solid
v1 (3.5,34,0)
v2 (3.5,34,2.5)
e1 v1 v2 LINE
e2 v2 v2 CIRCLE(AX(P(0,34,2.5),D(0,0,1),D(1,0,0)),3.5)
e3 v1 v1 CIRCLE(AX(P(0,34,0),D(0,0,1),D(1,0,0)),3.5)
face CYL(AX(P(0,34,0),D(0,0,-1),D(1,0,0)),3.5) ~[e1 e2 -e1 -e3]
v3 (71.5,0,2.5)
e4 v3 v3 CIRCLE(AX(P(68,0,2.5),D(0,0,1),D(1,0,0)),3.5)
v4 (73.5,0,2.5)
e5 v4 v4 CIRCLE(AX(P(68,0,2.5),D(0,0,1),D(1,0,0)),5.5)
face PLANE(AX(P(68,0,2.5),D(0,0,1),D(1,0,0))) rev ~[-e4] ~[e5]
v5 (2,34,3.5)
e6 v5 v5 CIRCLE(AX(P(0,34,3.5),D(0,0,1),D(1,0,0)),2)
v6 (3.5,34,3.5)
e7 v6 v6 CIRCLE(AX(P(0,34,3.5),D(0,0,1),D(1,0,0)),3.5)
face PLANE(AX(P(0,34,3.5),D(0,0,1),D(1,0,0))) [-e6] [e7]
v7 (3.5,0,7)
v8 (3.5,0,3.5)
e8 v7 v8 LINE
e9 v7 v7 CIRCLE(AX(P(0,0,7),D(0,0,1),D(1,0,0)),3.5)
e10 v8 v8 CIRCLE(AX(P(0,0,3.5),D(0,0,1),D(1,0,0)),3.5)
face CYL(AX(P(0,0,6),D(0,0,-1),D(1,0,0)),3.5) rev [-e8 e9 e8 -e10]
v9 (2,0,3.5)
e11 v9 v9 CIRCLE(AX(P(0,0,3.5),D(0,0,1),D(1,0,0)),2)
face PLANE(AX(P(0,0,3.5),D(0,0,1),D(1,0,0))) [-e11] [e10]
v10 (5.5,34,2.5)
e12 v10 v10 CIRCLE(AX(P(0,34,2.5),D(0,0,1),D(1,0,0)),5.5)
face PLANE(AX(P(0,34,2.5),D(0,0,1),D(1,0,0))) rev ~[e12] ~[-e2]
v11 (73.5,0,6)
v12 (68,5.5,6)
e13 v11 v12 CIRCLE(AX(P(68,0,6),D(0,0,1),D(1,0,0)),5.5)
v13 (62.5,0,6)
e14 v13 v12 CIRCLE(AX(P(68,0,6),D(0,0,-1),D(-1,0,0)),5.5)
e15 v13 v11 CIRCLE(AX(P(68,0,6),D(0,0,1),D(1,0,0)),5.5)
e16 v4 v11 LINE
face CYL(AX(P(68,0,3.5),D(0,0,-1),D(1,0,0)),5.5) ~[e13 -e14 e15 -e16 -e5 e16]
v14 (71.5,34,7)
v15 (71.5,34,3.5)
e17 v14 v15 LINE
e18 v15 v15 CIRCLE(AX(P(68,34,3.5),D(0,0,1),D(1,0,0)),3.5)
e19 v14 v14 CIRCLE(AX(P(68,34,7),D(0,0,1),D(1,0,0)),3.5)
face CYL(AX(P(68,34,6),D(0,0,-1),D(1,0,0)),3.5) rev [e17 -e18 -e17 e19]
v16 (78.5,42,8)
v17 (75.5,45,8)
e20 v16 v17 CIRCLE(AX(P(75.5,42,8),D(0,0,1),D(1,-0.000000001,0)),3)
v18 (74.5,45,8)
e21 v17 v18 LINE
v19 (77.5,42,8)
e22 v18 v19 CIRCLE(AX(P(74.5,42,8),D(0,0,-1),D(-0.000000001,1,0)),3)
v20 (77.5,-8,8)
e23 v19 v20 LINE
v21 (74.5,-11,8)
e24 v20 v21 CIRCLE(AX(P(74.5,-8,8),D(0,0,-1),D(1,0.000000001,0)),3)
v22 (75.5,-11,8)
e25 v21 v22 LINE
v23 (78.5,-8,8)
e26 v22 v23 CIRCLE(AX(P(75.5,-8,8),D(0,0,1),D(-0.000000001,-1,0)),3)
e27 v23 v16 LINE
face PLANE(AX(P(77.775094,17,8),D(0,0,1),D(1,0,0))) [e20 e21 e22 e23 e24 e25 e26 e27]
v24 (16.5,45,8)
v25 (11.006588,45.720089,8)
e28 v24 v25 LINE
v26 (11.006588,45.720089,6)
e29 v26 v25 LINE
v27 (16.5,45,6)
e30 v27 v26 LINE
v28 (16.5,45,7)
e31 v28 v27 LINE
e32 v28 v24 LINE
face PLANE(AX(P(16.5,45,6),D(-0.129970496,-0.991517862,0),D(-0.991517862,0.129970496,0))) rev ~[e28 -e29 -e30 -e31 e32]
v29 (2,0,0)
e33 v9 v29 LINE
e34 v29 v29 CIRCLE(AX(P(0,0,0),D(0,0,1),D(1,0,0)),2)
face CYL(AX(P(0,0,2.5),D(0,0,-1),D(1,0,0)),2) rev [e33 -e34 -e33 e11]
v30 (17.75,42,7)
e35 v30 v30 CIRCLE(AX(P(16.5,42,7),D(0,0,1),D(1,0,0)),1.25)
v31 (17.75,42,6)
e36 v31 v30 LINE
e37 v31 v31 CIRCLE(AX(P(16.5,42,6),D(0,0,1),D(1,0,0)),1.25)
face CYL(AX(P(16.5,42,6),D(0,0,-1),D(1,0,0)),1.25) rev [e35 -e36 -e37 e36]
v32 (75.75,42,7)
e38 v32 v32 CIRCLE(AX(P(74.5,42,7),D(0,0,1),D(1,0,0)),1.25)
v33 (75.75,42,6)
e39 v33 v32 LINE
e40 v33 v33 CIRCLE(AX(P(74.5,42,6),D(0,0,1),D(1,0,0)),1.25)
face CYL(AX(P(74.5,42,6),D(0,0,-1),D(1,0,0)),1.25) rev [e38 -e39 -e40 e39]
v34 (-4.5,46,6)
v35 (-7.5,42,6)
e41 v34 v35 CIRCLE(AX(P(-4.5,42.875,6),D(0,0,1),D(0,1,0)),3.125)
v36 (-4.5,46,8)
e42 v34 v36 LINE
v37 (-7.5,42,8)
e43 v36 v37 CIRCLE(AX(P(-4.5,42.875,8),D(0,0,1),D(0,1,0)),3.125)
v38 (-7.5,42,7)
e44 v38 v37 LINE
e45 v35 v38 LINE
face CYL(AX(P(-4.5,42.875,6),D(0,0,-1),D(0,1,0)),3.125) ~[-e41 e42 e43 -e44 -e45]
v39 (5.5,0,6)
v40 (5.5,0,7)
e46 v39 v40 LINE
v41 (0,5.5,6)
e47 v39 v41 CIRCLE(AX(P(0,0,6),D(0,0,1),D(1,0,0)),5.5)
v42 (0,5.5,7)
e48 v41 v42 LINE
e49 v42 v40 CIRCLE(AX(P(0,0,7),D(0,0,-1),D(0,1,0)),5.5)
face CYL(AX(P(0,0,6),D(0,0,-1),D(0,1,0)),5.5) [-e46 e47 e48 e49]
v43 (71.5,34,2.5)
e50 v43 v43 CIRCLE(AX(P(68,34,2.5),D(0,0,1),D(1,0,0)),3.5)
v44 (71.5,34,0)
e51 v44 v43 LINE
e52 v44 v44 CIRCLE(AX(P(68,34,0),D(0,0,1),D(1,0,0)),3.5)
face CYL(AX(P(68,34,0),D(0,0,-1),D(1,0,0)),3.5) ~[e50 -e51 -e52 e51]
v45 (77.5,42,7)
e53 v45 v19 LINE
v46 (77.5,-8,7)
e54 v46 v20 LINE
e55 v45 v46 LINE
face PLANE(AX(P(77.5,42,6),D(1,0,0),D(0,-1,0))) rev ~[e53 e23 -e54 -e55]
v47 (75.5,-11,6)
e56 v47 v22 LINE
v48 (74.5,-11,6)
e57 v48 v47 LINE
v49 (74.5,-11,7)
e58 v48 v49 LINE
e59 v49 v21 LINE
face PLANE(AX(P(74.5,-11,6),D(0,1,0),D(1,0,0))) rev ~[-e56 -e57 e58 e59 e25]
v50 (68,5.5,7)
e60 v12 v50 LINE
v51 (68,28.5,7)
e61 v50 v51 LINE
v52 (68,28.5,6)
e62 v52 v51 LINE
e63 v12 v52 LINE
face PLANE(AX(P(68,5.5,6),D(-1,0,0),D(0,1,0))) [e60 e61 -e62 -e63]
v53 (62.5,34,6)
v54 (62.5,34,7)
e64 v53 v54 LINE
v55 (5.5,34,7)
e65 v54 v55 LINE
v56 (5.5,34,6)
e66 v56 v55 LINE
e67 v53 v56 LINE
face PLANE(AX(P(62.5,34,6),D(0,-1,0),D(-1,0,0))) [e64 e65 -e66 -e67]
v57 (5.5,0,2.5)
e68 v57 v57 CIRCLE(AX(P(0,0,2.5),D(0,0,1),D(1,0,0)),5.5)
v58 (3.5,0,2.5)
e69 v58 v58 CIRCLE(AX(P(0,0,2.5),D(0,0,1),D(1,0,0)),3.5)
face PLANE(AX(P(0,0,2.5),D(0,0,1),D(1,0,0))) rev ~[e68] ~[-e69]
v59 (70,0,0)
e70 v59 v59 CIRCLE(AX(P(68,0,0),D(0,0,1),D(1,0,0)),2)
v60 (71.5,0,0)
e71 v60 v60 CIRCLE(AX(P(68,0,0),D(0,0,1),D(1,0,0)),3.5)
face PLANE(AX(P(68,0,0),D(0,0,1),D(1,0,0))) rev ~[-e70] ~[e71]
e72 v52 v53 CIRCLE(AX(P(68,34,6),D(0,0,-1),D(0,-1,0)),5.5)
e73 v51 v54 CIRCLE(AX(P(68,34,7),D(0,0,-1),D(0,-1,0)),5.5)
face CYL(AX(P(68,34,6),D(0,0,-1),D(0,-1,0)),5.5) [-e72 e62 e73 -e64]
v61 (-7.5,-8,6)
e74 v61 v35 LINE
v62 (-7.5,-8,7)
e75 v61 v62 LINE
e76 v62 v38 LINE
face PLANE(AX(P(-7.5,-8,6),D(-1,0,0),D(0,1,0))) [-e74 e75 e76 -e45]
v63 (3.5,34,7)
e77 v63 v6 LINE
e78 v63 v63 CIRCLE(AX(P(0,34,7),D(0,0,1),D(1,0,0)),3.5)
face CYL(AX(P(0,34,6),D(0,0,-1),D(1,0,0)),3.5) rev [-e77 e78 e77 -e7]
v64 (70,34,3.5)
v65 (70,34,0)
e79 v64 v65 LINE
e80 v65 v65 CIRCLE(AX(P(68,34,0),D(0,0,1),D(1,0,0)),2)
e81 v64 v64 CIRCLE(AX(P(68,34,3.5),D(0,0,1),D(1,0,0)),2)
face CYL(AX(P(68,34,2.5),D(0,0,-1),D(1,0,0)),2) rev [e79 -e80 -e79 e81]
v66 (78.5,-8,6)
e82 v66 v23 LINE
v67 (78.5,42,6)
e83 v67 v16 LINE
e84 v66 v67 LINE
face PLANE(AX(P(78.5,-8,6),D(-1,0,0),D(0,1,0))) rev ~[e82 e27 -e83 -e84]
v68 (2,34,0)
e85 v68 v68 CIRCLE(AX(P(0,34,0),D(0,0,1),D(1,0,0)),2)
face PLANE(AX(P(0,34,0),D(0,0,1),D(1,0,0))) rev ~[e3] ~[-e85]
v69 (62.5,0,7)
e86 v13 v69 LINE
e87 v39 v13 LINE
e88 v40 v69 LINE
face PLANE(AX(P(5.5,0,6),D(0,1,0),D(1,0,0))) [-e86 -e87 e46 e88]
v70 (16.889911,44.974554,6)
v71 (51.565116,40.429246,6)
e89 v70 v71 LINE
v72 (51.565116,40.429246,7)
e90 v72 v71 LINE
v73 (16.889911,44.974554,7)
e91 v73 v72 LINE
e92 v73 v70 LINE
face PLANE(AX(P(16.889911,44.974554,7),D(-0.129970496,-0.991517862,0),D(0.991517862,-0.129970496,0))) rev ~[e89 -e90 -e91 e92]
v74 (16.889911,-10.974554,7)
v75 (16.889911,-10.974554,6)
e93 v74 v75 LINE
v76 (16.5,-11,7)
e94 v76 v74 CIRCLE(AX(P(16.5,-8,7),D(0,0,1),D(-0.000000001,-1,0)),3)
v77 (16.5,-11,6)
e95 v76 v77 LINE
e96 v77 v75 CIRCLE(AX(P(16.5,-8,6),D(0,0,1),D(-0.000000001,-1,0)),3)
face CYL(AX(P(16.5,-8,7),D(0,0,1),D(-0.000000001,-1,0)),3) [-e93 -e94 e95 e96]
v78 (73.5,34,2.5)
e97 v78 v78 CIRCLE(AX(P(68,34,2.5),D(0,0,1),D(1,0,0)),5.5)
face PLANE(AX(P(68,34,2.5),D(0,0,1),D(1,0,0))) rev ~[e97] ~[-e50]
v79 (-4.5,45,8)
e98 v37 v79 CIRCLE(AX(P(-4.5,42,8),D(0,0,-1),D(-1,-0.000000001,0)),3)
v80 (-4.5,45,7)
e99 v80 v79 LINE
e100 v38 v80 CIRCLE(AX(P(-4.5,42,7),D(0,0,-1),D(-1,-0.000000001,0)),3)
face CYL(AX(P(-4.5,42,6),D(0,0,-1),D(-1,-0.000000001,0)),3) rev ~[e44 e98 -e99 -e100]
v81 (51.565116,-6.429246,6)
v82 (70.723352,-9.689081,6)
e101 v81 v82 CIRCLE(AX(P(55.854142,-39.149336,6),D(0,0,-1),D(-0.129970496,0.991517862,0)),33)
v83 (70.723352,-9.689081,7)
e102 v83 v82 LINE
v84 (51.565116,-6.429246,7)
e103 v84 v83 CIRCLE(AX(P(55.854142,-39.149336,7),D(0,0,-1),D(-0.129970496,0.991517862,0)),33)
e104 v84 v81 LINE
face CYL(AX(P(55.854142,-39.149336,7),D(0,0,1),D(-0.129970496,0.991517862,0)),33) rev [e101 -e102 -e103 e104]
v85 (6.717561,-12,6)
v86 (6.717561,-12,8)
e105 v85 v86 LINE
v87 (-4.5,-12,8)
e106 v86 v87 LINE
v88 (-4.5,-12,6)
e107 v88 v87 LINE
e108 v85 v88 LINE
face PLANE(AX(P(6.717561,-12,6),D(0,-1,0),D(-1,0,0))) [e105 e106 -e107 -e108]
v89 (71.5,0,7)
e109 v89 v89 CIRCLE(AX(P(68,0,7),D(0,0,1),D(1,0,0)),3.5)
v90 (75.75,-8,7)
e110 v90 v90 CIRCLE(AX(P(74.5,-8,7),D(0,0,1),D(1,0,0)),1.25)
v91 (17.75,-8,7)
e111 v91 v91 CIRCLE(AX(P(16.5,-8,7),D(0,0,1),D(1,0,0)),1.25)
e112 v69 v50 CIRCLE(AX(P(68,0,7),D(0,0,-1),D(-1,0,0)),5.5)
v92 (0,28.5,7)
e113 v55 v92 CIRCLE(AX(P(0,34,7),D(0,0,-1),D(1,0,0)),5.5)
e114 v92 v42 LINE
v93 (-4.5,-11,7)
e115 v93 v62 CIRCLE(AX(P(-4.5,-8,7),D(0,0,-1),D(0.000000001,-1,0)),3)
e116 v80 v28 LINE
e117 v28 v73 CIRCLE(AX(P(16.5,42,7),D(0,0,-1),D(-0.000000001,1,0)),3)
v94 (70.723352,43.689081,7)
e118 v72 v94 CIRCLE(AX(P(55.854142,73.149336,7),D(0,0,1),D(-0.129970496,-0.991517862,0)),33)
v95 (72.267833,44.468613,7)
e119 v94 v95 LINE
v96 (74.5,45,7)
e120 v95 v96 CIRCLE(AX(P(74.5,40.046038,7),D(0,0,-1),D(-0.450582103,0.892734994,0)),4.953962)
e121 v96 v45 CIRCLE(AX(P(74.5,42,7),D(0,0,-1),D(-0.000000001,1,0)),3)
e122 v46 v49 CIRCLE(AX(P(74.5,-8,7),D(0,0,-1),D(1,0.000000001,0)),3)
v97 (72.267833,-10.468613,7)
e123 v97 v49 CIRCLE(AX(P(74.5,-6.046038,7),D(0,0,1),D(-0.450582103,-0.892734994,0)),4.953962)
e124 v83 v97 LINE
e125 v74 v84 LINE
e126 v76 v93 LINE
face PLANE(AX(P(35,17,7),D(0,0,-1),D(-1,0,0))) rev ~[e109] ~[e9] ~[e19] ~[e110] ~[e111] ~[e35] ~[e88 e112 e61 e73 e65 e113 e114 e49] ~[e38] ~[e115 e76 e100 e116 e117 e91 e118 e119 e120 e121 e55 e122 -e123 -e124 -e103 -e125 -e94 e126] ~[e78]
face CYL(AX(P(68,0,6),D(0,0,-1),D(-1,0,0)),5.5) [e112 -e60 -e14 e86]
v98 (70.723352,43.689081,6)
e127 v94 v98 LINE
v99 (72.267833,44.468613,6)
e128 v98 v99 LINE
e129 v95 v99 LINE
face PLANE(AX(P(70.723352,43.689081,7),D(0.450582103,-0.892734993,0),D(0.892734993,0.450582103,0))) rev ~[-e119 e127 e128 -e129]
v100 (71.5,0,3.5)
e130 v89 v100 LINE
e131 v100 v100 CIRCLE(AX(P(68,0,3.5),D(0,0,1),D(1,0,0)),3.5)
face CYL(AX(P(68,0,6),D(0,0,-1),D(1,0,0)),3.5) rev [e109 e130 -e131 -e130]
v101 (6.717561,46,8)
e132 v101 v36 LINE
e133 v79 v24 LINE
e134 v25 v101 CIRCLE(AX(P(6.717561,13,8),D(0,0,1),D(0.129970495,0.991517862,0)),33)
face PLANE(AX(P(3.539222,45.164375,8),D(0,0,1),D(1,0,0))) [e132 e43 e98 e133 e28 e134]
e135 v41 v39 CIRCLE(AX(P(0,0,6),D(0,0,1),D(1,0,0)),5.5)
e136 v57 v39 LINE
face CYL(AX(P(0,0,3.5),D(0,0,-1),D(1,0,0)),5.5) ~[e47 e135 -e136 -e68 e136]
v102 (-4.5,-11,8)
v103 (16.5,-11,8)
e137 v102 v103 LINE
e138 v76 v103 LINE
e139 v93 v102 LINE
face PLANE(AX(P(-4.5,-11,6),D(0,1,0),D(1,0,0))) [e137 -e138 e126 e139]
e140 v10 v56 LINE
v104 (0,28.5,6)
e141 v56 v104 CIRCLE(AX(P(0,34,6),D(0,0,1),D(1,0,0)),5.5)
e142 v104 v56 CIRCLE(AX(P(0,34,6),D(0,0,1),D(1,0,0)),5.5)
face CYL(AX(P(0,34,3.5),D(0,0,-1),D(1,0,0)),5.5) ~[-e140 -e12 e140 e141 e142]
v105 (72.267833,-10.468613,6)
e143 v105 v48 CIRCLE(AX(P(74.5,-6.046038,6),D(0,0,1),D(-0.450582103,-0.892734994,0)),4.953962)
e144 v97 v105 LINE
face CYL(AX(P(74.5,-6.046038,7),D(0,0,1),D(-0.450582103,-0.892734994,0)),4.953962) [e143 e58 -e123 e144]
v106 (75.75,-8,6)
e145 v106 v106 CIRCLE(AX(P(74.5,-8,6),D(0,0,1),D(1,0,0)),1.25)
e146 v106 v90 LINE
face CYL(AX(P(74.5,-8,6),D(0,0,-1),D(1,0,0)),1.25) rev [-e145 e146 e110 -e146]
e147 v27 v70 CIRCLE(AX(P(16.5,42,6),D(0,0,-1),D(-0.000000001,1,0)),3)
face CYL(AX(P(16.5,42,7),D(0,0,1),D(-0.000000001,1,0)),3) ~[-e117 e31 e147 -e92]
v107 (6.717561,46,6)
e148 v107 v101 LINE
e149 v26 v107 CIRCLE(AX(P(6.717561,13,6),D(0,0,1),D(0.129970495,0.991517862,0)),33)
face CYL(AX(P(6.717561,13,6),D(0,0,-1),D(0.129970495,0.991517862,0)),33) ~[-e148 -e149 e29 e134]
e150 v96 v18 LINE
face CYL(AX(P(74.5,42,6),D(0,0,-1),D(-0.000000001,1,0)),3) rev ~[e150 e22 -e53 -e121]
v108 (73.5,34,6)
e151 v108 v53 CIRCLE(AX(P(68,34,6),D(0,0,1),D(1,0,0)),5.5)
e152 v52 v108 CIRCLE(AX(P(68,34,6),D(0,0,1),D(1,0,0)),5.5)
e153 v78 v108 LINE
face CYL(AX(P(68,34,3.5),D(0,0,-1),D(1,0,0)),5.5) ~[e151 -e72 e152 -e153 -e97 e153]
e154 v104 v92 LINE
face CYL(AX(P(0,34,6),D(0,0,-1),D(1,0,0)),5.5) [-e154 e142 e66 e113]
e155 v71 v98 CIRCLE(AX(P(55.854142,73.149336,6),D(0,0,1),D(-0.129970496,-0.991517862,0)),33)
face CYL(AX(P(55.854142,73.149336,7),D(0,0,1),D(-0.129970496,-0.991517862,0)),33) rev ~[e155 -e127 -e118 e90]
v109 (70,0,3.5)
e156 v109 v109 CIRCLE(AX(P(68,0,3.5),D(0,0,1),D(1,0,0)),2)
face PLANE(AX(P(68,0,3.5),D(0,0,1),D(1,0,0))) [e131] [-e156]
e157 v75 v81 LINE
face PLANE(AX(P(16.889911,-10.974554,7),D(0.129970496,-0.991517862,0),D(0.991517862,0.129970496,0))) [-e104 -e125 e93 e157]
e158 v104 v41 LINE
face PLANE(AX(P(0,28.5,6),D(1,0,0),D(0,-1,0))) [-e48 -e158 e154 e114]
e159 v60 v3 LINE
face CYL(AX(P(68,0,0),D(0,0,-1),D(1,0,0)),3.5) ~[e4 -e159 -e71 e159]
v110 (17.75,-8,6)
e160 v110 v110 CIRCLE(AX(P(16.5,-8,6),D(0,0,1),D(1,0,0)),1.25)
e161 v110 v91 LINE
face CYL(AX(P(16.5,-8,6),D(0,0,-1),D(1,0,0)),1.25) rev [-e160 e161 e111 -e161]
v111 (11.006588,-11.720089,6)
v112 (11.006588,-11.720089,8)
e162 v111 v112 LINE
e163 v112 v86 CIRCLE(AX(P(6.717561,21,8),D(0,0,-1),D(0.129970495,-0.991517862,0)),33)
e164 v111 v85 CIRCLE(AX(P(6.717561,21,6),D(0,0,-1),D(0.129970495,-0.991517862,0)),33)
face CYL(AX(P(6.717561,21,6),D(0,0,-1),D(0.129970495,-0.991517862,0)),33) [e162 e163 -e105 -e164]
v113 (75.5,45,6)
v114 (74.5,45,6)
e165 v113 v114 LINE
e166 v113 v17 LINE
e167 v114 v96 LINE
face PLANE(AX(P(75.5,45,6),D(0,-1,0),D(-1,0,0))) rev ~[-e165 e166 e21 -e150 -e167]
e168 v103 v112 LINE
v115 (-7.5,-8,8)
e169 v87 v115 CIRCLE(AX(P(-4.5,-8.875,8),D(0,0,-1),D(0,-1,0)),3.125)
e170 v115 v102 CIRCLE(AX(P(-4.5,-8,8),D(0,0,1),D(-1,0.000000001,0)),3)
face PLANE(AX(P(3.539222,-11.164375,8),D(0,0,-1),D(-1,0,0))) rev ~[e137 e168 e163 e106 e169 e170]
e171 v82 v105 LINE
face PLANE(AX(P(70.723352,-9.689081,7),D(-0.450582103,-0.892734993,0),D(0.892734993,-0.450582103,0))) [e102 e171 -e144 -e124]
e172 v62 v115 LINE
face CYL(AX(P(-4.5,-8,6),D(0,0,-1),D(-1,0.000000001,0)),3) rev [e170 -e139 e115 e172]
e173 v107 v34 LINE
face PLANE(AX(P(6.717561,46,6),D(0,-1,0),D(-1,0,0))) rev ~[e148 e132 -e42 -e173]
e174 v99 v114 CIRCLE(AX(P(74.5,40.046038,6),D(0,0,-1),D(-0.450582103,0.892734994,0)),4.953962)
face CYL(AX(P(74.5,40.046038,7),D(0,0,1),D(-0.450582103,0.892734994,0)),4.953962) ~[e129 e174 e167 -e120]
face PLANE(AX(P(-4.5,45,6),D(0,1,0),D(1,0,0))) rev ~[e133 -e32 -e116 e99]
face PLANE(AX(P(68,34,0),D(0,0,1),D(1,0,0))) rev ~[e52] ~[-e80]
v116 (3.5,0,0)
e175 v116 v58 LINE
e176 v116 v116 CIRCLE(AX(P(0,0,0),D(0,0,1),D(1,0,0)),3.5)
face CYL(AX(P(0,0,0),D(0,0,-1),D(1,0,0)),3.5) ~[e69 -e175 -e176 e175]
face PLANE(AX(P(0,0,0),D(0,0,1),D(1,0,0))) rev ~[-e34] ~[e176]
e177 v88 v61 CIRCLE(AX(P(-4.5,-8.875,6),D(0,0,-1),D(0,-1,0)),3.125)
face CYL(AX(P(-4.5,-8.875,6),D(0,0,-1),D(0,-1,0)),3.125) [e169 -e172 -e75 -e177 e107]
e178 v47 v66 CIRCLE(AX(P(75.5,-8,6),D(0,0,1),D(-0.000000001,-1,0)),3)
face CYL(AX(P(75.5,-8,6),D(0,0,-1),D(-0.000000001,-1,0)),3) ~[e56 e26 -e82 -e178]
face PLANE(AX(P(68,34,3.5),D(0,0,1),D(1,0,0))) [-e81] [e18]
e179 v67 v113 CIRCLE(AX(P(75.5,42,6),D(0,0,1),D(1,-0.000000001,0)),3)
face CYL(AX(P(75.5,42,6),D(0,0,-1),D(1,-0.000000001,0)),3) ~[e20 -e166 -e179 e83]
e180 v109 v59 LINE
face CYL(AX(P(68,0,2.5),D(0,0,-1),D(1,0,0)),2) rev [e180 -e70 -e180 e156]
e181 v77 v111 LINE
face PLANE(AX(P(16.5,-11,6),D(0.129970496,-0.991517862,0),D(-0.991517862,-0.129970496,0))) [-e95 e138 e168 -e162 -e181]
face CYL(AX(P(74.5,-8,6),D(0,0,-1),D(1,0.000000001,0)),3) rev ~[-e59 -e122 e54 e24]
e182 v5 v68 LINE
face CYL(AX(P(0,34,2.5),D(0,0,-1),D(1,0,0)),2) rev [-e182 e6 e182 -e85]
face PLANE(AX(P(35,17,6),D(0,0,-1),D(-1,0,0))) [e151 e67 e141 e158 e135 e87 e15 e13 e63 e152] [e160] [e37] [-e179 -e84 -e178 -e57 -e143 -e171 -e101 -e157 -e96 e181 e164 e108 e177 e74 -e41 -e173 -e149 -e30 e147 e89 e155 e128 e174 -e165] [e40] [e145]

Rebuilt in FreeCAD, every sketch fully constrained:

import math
import FreeCAD as App
import Part
import Sketcher

V = App.Vector
Q = App.Units.Quantity

doc = App.newDocument("Part")
body = doc.addObject("PartDesign::Body", "Body")

# Sketch on XY plane
sketch1 = body.newObject("Sketcher::SketchObject", "Sketch")
sketch1.AttachmentSupport = (doc.getObject("XY_Plane"), [""])
sketch1.MapMode = "FlatFace"
sketch1.addGeometry([
    Part.Circle(V(0, 34, 0), V(0, 0, 1), 3.5),
    Part.Circle(V(0, 34, 0), V(0, 0, 1), 2),
], False)
sketch1.addConstraint([
    Sketcher.Constraint("Coincident", 1, 3, 0, 3),
    Sketcher.Constraint("PointOnObject", 0, 3, -2),
    Sketcher.Constraint("Diameter", 0, Q("7 mm")),
    Sketcher.Constraint("Diameter", 1, Q("4 mm")),
    Sketcher.Constraint("DistanceY", -1, 1, 0, 3, Q("34 mm")),
])
pad1 = body.newObject("PartDesign::Pad", "Pad")
pad1.Profile = sketch1
pad1.Length = 2.5
body2 = doc.addObject("PartDesign::Body", "Body001")

# Sketch on XY plane
sketch2 = body2.newObject("Sketcher::SketchObject", "Sketch001")
sketch2.AttachmentSupport = (doc.getObject("XY_Plane001"), [""])
sketch2.MapMode = "FlatFace"
sketch2.addGeometry([
    Part.Circle(V(68, 34, 0), V(0, 0, 1), 3.5),
    Part.Circle(V(68, 34, 0), V(0, 0, 1), 2),
], False)
sketch2.addConstraint([
    Sketcher.Constraint("Coincident", 1, 3, 0, 3),
    Sketcher.Constraint("Diameter", 0, Q("7 mm")),
    Sketcher.Constraint("Diameter", 1, Q("4 mm")),
    Sketcher.Constraint("DistanceX", -1, 1, 0, 3, Q("68 mm")),
    Sketcher.Constraint("DistanceY", -1, 1, 0, 3, Q("34 mm")),
])
pad2 = body2.newObject("PartDesign::Pad", "Pad001")
pad2.Profile = sketch2
pad2.Length = 2.5
body3 = doc.addObject("PartDesign::Body", "Body002")

# Sketch on XY plane
sketch3 = body3.newObject("Sketcher::SketchObject", "Sketch002")
sketch3.AttachmentSupport = (doc.getObject("XY_Plane002"), [""])
sketch3.MapMode = "FlatFace"
sketch3.addGeometry([
    Part.Circle(V(68, 0, 0), V(0, 0, 1), 3.5),
    Part.Circle(V(68, 0, 0), V(0, 0, 1), 2),
], False)
sketch3.addConstraint([
    Sketcher.Constraint("Coincident", 1, 3, 0, 3),
    Sketcher.Constraint("PointOnObject", 0, 3, -1),
    Sketcher.Constraint("Diameter", 0, Q("7 mm")),
    Sketcher.Constraint("Diameter", 1, Q("4 mm")),
    Sketcher.Constraint("DistanceX", -1, 1, 0, 3, Q("68 mm")),
])
pad3 = body3.newObject("PartDesign::Pad", "Pad002")
pad3.Profile = sketch3
pad3.Length = 2.5
body4 = doc.addObject("PartDesign::Body", "Body003")

# Sketch on XY plane
sketch4 = body4.newObject("Sketcher::SketchObject", "Sketch003")
sketch4.AttachmentSupport = (doc.getObject("XY_Plane003"), [""])
sketch4.MapMode = "FlatFace"
sketch4.addGeometry([
    Part.Circle(V(0, 0, 0), V(0, 0, 1), 3.5),
    Part.Circle(V(0, 0, 0), V(0, 0, 1), 2),
], False)
sketch4.addConstraint([
    Sketcher.Constraint("Coincident", 0, 3, -1, 1),
    Sketcher.Constraint("Coincident", 1, 3, -1, 1),
    Sketcher.Constraint("Diameter", 0, Q("7 mm")),
    Sketcher.Constraint("Diameter", 1, Q("4 mm")),
])
pad4 = body4.newObject("PartDesign::Pad", "Pad003")
pad4.Profile = sketch4
pad4.Length = 2.5
body.AllowCompound = True
doc.recompute()

boolean = body.newObject("PartDesign::Boolean", "Boolean")
boolean.Type = "Fuse"
boolean.addObjects([body2])
doc.recompute()

boolean2 = body.newObject("PartDesign::Boolean", "Boolean001")
boolean2.Type = "Fuse"
boolean2.addObjects([body3])
doc.recompute()

boolean3 = body.newObject("PartDesign::Boolean", "Boolean002")
boolean3.Type = "Fuse"
boolean3.addObjects([body4])

# Sketch on XY plane
sketch5 = body.newObject("Sketcher::SketchObject", "Sketch004")
sketch5.AttachmentSupport = (doc.getObject("XY_Plane"), [""])
sketch5.MapMode = "FlatFace"
sketch5.AttachmentOffset = App.Placement(V(0, 0, 2.5), App.Rotation())
sketch5.addGeometry([
    Part.Circle(V(0, 34, 0), V(0, 0, 1), 5.5),  # 0
    Part.Circle(V(0, 34, 0), V(0, 0, 1), 2),  # 1
    Part.Circle(V(68, 34, 0), V(0, 0, 1), 5.5),  # 2
    Part.Circle(V(68, 34, 0), V(0, 0, 1), 2),  # 3
    Part.Circle(V(68, 0, 0), V(0, 0, 1), 5.5),  # 4
    Part.Circle(V(68, 0, 0), V(0, 0, 1), 2),  # 5
    Part.Circle(V(0, 0, 0), V(0, 0, 1), 5.5),  # 6
    Part.Circle(V(0, 0, 0), V(0, 0, 1), 2),  # 7
], False)
sketch5.addConstraint([
    Sketcher.Constraint("Coincident", 6, 3, -1, 1),
    Sketcher.Constraint("Coincident", 7, 3, -1, 1),
    Sketcher.Constraint("Coincident", 1, 3, 0, 3),
    Sketcher.Constraint("Coincident", 3, 3, 2, 3),
    Sketcher.Constraint("Coincident", 5, 3, 4, 3),
    Sketcher.Constraint("Equal", 0, 2),
    Sketcher.Constraint("Equal", 1, 3),
    Sketcher.Constraint("Equal", 2, 4),
    Sketcher.Constraint("Equal", 3, 5),
    Sketcher.Constraint("Equal", 4, 6),
    Sketcher.Constraint("Equal", 5, 7),
    Sketcher.Constraint("PointOnObject", 0, 3, -2),
    Sketcher.Constraint("PointOnObject", 4, 3, -1),
    Sketcher.Constraint("Horizontal", 1, 3, 2, 3),
    Sketcher.Constraint("Vertical", 3, 3, 4, 3),
    Sketcher.Constraint("Diameter", 0, Q("11 mm")),
    Sketcher.Constraint("Diameter", 1, Q("4 mm")),
    Sketcher.Constraint("DistanceY", -1, 1, 0, 3, Q("34 mm")),
    Sketcher.Constraint("DistanceX", -1, 1, 2, 3, Q("68 mm")),
])
pad5 = body.newObject("PartDesign::Pad", "Pad004")
pad5.Profile = sketch5
pad5.Length = 1

# Sketch on XY plane
sketch6 = body.newObject("Sketcher::SketchObject", "Sketch005")
sketch6.AttachmentSupport = (doc.getObject("XY_Plane"), [""])
sketch6.MapMode = "FlatFace"
sketch6.AttachmentOffset = App.Placement(V(0, 0, 3.5), App.Rotation())
sketch6.addGeometry([
    Part.Circle(V(0, 34, 0), V(0, 0, 1), 5.5),  # 0
    Part.Circle(V(0, 34, 0), V(0, 0, 1), 3.5),  # 1
    Part.Circle(V(68, 34, 0), V(0, 0, 1), 5.5),  # 2
    Part.Circle(V(68, 34, 0), V(0, 0, 1), 3.5),  # 3
    Part.Circle(V(68, 0, 0), V(0, 0, 1), 5.5),  # 4
    Part.Circle(V(68, 0, 0), V(0, 0, 1), 3.5),  # 5
    Part.Circle(V(0, 0, 0), V(0, 0, 1), 5.5),  # 6
    Part.Circle(V(0, 0, 0), V(0, 0, 1), 3.5),  # 7
], False)
sketch6.addConstraint([
    Sketcher.Constraint("Coincident", 6, 3, -1, 1),
    Sketcher.Constraint("Coincident", 7, 3, -1, 1),
    Sketcher.Constraint("Coincident", 1, 3, 0, 3),
    Sketcher.Constraint("Coincident", 3, 3, 2, 3),
    Sketcher.Constraint("Coincident", 5, 3, 4, 3),
    Sketcher.Constraint("Equal", 0, 2),
    Sketcher.Constraint("Equal", 1, 3),
    Sketcher.Constraint("Equal", 2, 4),
    Sketcher.Constraint("Equal", 3, 5),
    Sketcher.Constraint("Equal", 4, 6),
    Sketcher.Constraint("Equal", 5, 7),
    Sketcher.Constraint("PointOnObject", 0, 3, -2),
    Sketcher.Constraint("PointOnObject", 4, 3, -1),
    Sketcher.Constraint("Horizontal", 1, 3, 2, 3),
    Sketcher.Constraint("Vertical", 3, 3, 4, 3),
    Sketcher.Constraint("Diameter", 0, Q("11 mm")),
    Sketcher.Constraint("Diameter", 1, Q("7 mm")),
    Sketcher.Constraint("DistanceY", -1, 1, 0, 3, Q("34 mm")),
    Sketcher.Constraint("DistanceX", -1, 1, 2, 3, Q("68 mm")),
])
pad6 = body.newObject("PartDesign::Pad", "Pad005")
pad6.Profile = sketch6
pad6.Length = 2.5

# Sketch on XY plane
sketch7 = body.newObject("Sketcher::SketchObject", "Sketch006")
sketch7.AttachmentSupport = (doc.getObject("XY_Plane"), [""])
sketch7.MapMode = "FlatFace"
sketch7.AttachmentOffset = App.Placement(V(0, 0, 6), App.Rotation())
sketch7.addGeometry([
    Part.LineSegment(V(74.5, 45, 0), V(-4.5, 45, 0)),  # 0
    Part.ArcOfCircle(Part.Circle(V(-4.5, 42, 0), V(0, 0, 1), 3), math.radians(90), math.radians(180)),  # 1
    Part.LineSegment(V(-7.5, 42, 0), V(-7.5, -8, 0)),  # 2
    Part.ArcOfCircle(Part.Circle(V(-4.5, -8, 0), V(0, 0, 1), 3), math.radians(180), math.radians(270)),  # 3
    Part.LineSegment(V(-4.5, -11, 0), V(74.5, -11, 0)),  # 4
    Part.ArcOfCircle(Part.Circle(V(74.5, -8, 0), V(0, 0, 1), 3), math.radians(-90), math.radians(0)),  # 5
    Part.LineSegment(V(77.5, -8, 0), V(77.5, 42, 0)),  # 6
    Part.ArcOfCircle(Part.Circle(V(74.5, 42, 0), V(0, 0, 1), 3), math.radians(0), math.radians(90)),  # 7
    Part.Circle(V(74.5, -8, 0), V(0, 0, 1), 1.2),  # 8
    Part.Circle(V(68, 0, 0), V(0, 0, 1), 3.5),  # 9
    Part.Circle(V(16.5, -8, 0), V(0, 0, 1), 1.2),  # 10
    Part.Circle(V(0, 0, 0), V(0, 0, 1), 3.5),  # 11
    Part.Circle(V(68, 34, 0), V(0, 0, 1), 3.5),  # 12
    Part.Circle(V(74.5, 42, 0), V(0, 0, 1), 1.2),  # 13
    Part.ArcOfCircle(Part.Circle(V(0, 0, 0), V(0, 0, 1), 5.5), math.radians(0), math.radians(90)),  # 14
    Part.LineSegment(V(0, 5.5, 0), V(0, 28.5, 0)),  # 15
    Part.ArcOfCircle(Part.Circle(V(0, 34, 0), V(0, 0, 1), 5.5), math.radians(-90), math.radians(0)),  # 16
    Part.LineSegment(V(5.5, 34, 0), V(62.5, 34, 0)),  # 17
    Part.ArcOfCircle(Part.Circle(V(68, 34, 0), V(0, 0, 1), 5.5), math.radians(180), math.radians(270)),  # 18
    Part.LineSegment(V(68, 28.5, 0), V(68, 5.5, 0)),  # 19
    Part.ArcOfCircle(Part.Circle(V(68, 0, 0), V(0, 0, 1), 5.5), math.radians(90), math.radians(180)),  # 20
    Part.LineSegment(V(62.5, 0, 0), V(5.5, 0, 0)),  # 21
    Part.Circle(V(16.5, 42, 0), V(0, 0, 1), 1.2),  # 22
    Part.Circle(V(0, 34, 0), V(0, 0, 1), 3.5),  # 23
], False)
sketch7.addConstraint([
    Sketcher.Constraint("Tangent", 0, 2, 1, 1),
    Sketcher.Constraint("Tangent", 1, 2, 2, 1),
    Sketcher.Constraint("Tangent", 2, 2, 3, 1),
    Sketcher.Constraint("Tangent", 3, 2, 4, 1),
    Sketcher.Constraint("Tangent", 4, 2, 5, 1),
    Sketcher.Constraint("Tangent", 5, 2, 6, 1),
    Sketcher.Constraint("Tangent", 6, 2, 7, 1),
    Sketcher.Constraint("Tangent", 7, 2, 0, 1),
    Sketcher.Constraint("Coincident", 14, 2, 15, 1),
    Sketcher.Constraint("Coincident", 15, 2, 16, 1),
    Sketcher.Constraint("Coincident", 16, 2, 17, 1),
    Sketcher.Constraint("Coincident", 17, 2, 18, 1),
    Sketcher.Constraint("Coincident", 18, 2, 19, 1),
    Sketcher.Constraint("Coincident", 19, 2, 20, 1),
    Sketcher.Constraint("Coincident", 20, 2, 21, 1),
    Sketcher.Constraint("Coincident", 21, 2, 14, 1),
    Sketcher.Constraint("Horizontal", 0),
    Sketcher.Constraint("Vertical", 2),
    Sketcher.Constraint("Horizontal", 4),
    Sketcher.Constraint("Vertical", 6),
    Sketcher.Constraint("Vertical", 15),
    Sketcher.Constraint("Horizontal", 17),
    Sketcher.Constraint("Vertical", 19),
    Sketcher.Constraint("Horizontal", 21),
    Sketcher.Constraint("Coincident", 11, 3, -1, 1),
    Sketcher.Constraint("Coincident", 14, 3, -1, 1),
    Sketcher.Constraint("Coincident", 8, 3, 5, 3),
    Sketcher.Constraint("Coincident", 13, 3, 7, 3),
    Sketcher.Constraint("Coincident", 18, 3, 12, 3),
    Sketcher.Constraint("Coincident", 20, 3, 9, 3),
    Sketcher.Constraint("Coincident", 23, 3, 16, 3),
    Sketcher.Constraint("Equal", 1, 3),
    Sketcher.Constraint("Equal", 3, 5),
    Sketcher.Constraint("Equal", 5, 7),
    Sketcher.Constraint("Equal", 8, 10),
    Sketcher.Constraint("Equal", 9, 11),
    Sketcher.Constraint("Equal", 11, 12),
    Sketcher.Constraint("Equal", 10, 13),
    Sketcher.Constraint("Equal", 14, 16),
    Sketcher.Constraint("Equal", 16, 18),
    Sketcher.Constraint("Equal", 18, 20),
    Sketcher.Constraint("Equal", 13, 22),
    Sketcher.Constraint("Equal", 12, 23),
    Sketcher.Constraint("PointOnObject", 9, 3, -1),
    Sketcher.Constraint("PointOnObject", 16, 3, -2),
    Sketcher.Constraint("PointOnObject", 14, 2, -2),
    Sketcher.Constraint("PointOnObject", 20, 2, -1),
    Sketcher.Constraint("Horizontal", 8, 3, 10, 3),
    Sketcher.Constraint("Horizontal", 12, 3, 16, 3),
    Sketcher.Constraint("Horizontal", 13, 3, 22, 3),
    Sketcher.Constraint("Horizontal", 23, 3, 16, 2),
    Sketcher.Constraint("Vertical", 9, 3, 12, 3),
    Sketcher.Constraint("Vertical", 10, 3, 22, 3),
    Sketcher.Constraint("Vertical", 20, 3, 18, 2),
    Sketcher.Constraint("Diameter", 9, Q("7 mm")),
    Sketcher.Constraint("Radius", 1, Q("3 mm")),
    Sketcher.Constraint("Diameter", 8, Q("2.5 mm")),
    Sketcher.Constraint("Radius", 14, Q("5.5 mm")),
    Sketcher.Constraint("DistanceX", 0, 2, 0, 1, Q("79 mm")),
    Sketcher.Constraint("DistanceX", 17, 1, 17, 2, Q("57 mm")),
    Sketcher.Constraint("DistanceY", 2, 2, 2, 1, Q("50 mm")),
    Sketcher.Constraint("DistanceY", 15, 1, 15, 2, Q("23 mm")),
    Sketcher.Constraint("DistanceY", -1, 1, 1, 3, Q("42 mm")),
    Sketcher.Constraint("DistanceX", 3, 3, 10, 3, Q("21 mm")),
    Sketcher.Constraint("DistanceX", 1, 3, 16, 2, Q("10 mm")),
])
pad7 = body.newObject("PartDesign::Pad", "Pad006")
pad7.Profile = sketch7
pad7.Length = 1

# Sketch on XY plane
sketch8 = body.newObject("Sketcher::SketchObject", "Sketch007")
sketch8.AttachmentSupport = (doc.getObject("XY_Plane"), [""])
sketch8.MapMode = "FlatFace"
sketch8.AttachmentOffset = App.Placement(V(0, 0, 7), App.Rotation())
sketch8.addGeometry([
    Part.LineSegment(V(16.89, 44.97, 0), V(51.57, 40.43, 0)),  # 0
    Part.ArcOfCircle(Part.Circle(V(55.85, 73.15, 0), V(0, 0, 1), 33), math.radians(-97), math.radians(-63)),  # 1
    Part.LineSegment(V(70.72, 43.69, 0), V(72.27, 44.47, 0)),  # 2
    Part.ArcOfCircle(Part.Circle(V(74.5, 40.05, 0), V(0, 0, 1), 4.95), math.radians(90), math.radians(117)),  # 3
    Part.LineSegment(V(74.5, 45, 0), V(74.5, 49.66, 0)),  # 4
    Part.LineSegment(V(74.5, 49.66, 0), V(16.5, 49.66, 0)),  # 5
    Part.LineSegment(V(16.5, 49.66, 0), V(16.5, 45, 0)),  # 6
    Part.ArcOfCircle(Part.Circle(V(16.5, 42, 0), V(0, 0, 1), 3), math.radians(82.53), math.radians(90)),  # 7
    Part.LineSegment(V(74.5, -15.66, 0), V(74.5, -11, 0)),  # 8
    Part.ArcOfCircle(Part.Circle(V(74.5, -6.05, 0), V(0, 0, 1), 4.95), math.radians(-117), math.radians(-90)),  # 9
    Part.LineSegment(V(72.27, -10.47, 0), V(70.72, -9.69, 0)),  # 10
    Part.ArcOfCircle(Part.Circle(V(55.85, -39.15, 0), V(0, 0, 1), 33), math.radians(63), math.radians(97)),  # 11
    Part.LineSegment(V(51.57, -6.43, 0), V(16.89, -10.97, 0)),  # 12
    Part.ArcOfCircle(Part.Circle(V(16.5, -8, 0), V(0, 0, 1), 3), math.radians(-90), math.radians(-82.53)),  # 13
    Part.LineSegment(V(16.5, -11, 0), V(16.5, -15.66, 0)),  # 14
    Part.LineSegment(V(16.5, -15.66, 0), V(74.5, -15.66, 0)),  # 15
], False)
sketch8.addConstraint([
    Sketcher.Constraint("Tangent", 0, 2, 1, 1),
    Sketcher.Constraint("Tangent", 1, 2, 2, 1),
    Sketcher.Constraint("Tangent", 2, 2, 3, 2),
    Sketcher.Constraint("Coincident", 3, 1, 4, 1),
    Sketcher.Constraint("Coincident", 4, 2, 5, 1),
    Sketcher.Constraint("Coincident", 5, 2, 6, 1),
    Sketcher.Constraint("Coincident", 6, 2, 7, 2),
    Sketcher.Constraint("Tangent", 7, 1, 0, 1),
    Sketcher.Constraint("Coincident", 8, 2, 9, 2),
    Sketcher.Constraint("Tangent", 9, 1, 10, 1),
    Sketcher.Constraint("Tangent", 10, 2, 11, 1),
    Sketcher.Constraint("Tangent", 11, 2, 12, 1),
    Sketcher.Constraint("Tangent", 12, 2, 13, 2),
    Sketcher.Constraint("Coincident", 13, 1, 14, 1),
    Sketcher.Constraint("Coincident", 14, 2, 15, 1),
    Sketcher.Constraint("Coincident", 15, 2, 8, 1),
    Sketcher.Constraint("Vertical", 4),
    Sketcher.Constraint("Horizontal", 5),
    Sketcher.Constraint("Vertical", 6),
    Sketcher.Constraint("Vertical", 8),
    Sketcher.Constraint("Vertical", 14),
    Sketcher.Constraint("Horizontal", 15),
    Sketcher.Constraint("Equal", 3, 9),
    Sketcher.Constraint("Equal", 1, 11),
    Sketcher.Constraint("Equal", 7, 13),
    Sketcher.Constraint("Horizontal", 3, 1, 6, 2),
    Sketcher.Constraint("Horizontal", 8, 2, 13, 1),
    Sketcher.Constraint("Vertical", 3, 3, 9, 3),
    Sketcher.Constraint("Vertical", 1, 3, 11, 3),
    Sketcher.Constraint("Vertical", 7, 3, 13, 3),
    Sketcher.Constraint("Vertical", 9, 3, 3, 1),
    Sketcher.Constraint("Vertical", 13, 3, 5, 2),
    Sketcher.Constraint("Vertical", 4, 2, 8, 2),
    Sketcher.Constraint("Vertical", 2, 2, 9, 1),
    Sketcher.Constraint("Vertical", 6, 2, 13, 1),
    Sketcher.Constraint("Equal", 6, 8),
    Sketcher.Constraint("Radius", 1, Q("33 mm")),
    Sketcher.Constraint("Radius", 7, Q("3 mm")),
    Sketcher.Constraint("DistanceX", 5, 2, 5, 1, Q("58 mm")),
    Sketcher.Constraint("DistanceY", -1, 1, 7, 3, Q("42 mm")),
    Sketcher.Constraint("DistanceY", 13, 3, -1, 1, Q("8 mm")),
    Sketcher.Constraint("DistanceX", -1, 1, 3, 3, Q("74.5 mm")),
    Sketcher.Constraint("Radius", 3, Q("4.953962 mm")),
    Sketcher.Constraint("DistanceY", 4, 1, 4, 2, Q("4.66339 mm")),
    Sketcher.Constraint("Distance", 0, Q("34.97184 mm")),
    Sketcher.Constraint("DistanceX", -1, 1, 1, 2, Q("70.723352 mm")),
])
pocket1 = body.newObject("PartDesign::Pocket", "Pocket")
pocket1.Profile = sketch8
pocket1.Length = 1

# Sketch on XY plane
sketch9 = body.newObject("Sketcher::SketchObject", "Sketch008")
sketch9.AttachmentSupport = (doc.getObject("XY_Plane"), [""])
sketch9.MapMode = "FlatFace"
sketch9.AttachmentOffset = App.Placement(V(0, 0, 6), App.Rotation())
sketch9.addGeometry([
    Part.LineSegment(V(77.5, -8, 0), V(77.5, 42, 0)),  # 0
    Part.ArcOfCircle(Part.Circle(V(74.5, 42, 0), V(0, 0, 1), 3), math.radians(0), math.radians(90)),  # 1
    Part.LineSegment(V(74.5, 45, 0), V(75.5, 45, 0)),  # 2
    Part.ArcOfCircle(Part.Circle(V(75.5, 42, 0), V(0, 0, 1), 3), math.radians(0), math.radians(90)),  # 3
    Part.LineSegment(V(78.5, 42, 0), V(78.5, -8, 0)),  # 4
    Part.ArcOfCircle(Part.Circle(V(75.5, -8, 0), V(0, 0, 1), 3), math.radians(-90), math.radians(0)),  # 5
    Part.LineSegment(V(75.5, -11, 0), V(74.5, -11, 0)),  # 6
    Part.ArcOfCircle(Part.Circle(V(74.5, -8, 0), V(0, 0, 1), 3), math.radians(-90), math.radians(0)),  # 7
    Part.LineSegment(V(-4.5, -11, 0), V(16.5, -11, 0)),  # 8
    Part.LineSegment(V(16.5, -11, 0), V(11, -11.7, 0)),  # 9
    Part.ArcOfCircle(Part.Circle(V(6.7, 21, 0), V(0, 0, 1), 33), math.radians(-90), math.radians(-82.53)),  # 10
    Part.LineSegment(V(6.7, -12, 0), V(-4.5, -12, 0)),  # 11
    Part.ArcOfCircle(Part.Circle(V(-4.5, -8.9, 0), V(0, 0, 1), 3.1), math.radians(164), math.radians(270)),  # 12
    Part.ArcOfCircle(Part.Circle(V(-4.5, -8, 0), V(0, 0, 1), 3), math.radians(180), math.radians(270)),  # 13
    Part.LineSegment(V(-4.5, 46, 0), V(6.7, 46, 0)),  # 14
    Part.ArcOfCircle(Part.Circle(V(6.7, 13, 0), V(0, 0, 1), 33), math.radians(82.53), math.radians(90)),  # 15
    Part.LineSegment(V(11, 45.7, 0), V(16.5, 45, 0)),  # 16
    Part.LineSegment(V(16.5, 45, 0), V(-4.5, 45, 0)),  # 17
    Part.ArcOfCircle(Part.Circle(V(-4.5, 42, 0), V(0, 0, 1), 3), math.radians(90), math.radians(180)),  # 18
    Part.ArcOfCircle(Part.Circle(V(-4.5, 42.9, 0), V(0, 0, 1), 3.1), math.radians(90), math.radians(196)),  # 19
], False)
sketch9.addConstraint([
    Sketcher.Constraint("Tangent", 0, 2, 1, 1),
    Sketcher.Constraint("Tangent", 1, 2, 2, 1),
    Sketcher.Constraint("Tangent", 2, 2, 3, 2),
    Sketcher.Constraint("Tangent", 3, 1, 4, 1),
    Sketcher.Constraint("Tangent", 4, 2, 5, 2),
    Sketcher.Constraint("Tangent", 5, 1, 6, 1),
    Sketcher.Constraint("Tangent", 6, 2, 7, 1),
    Sketcher.Constraint("Tangent", 7, 2, 0, 1),
    Sketcher.Constraint("Coincident", 8, 2, 9, 1),
    Sketcher.Constraint("Tangent", 9, 2, 10, 2),
    Sketcher.Constraint("Tangent", 10, 1, 11, 1),
    Sketcher.Constraint("Tangent", 11, 2, 12, 2),
    Sketcher.Constraint("Coincident", 12, 1, 13, 1),
    Sketcher.Constraint("Tangent", 13, 2, 8, 1),
    Sketcher.Constraint("Tangent", 14, 2, 15, 2),
    Sketcher.Constraint("Tangent", 15, 1, 16, 1),
    Sketcher.Constraint("Coincident", 16, 2, 17, 1),
    Sketcher.Constraint("Tangent", 17, 2, 18, 1),
    Sketcher.Constraint("Coincident", 18, 2, 19, 2),
    Sketcher.Constraint("Tangent", 19, 1, 14, 1),
    Sketcher.Constraint("Vertical", 0),
    Sketcher.Constraint("Horizontal", 2),
    Sketcher.Constraint("Vertical", 4),
    Sketcher.Constraint("Horizontal", 6),
    Sketcher.Constraint("Horizontal", 8),
    Sketcher.Constraint("Horizontal", 11),
    Sketcher.Constraint("Horizontal", 14),
    Sketcher.Constraint("Horizontal", 17),
    Sketcher.Constraint("Equal", 1, 3),
    Sketcher.Constraint("Equal", 3, 5),
    Sketcher.Constraint("Equal", 5, 7),
    Sketcher.Constraint("Equal", 7, 13),
    Sketcher.Constraint("Equal", 10, 15),
    Sketcher.Constraint("Equal", 13, 18),
    Sketcher.Constraint("Equal", 12, 19),
    Sketcher.Constraint("Horizontal", 7, 3, 13, 3),
    Sketcher.Constraint("Horizontal", 3, 3, 18, 3),
    Sketcher.Constraint("Horizontal", 7, 2, 12, 1),
    Sketcher.Constraint("Horizontal", 3, 1, 18, 2),
    Sketcher.Constraint("Vertical", 12, 3, 13, 3),
    Sketcher.Constraint("Vertical", 10, 3, 15, 3),
    Sketcher.Constraint("Vertical", 13, 3, 18, 3),
    Sketcher.Constraint("Vertical", 18, 3, 19, 3),
    Sketcher.Constraint("Vertical", 9, 2, 15, 1),
    Sketcher.Constraint("Radius", 1, Q("3 mm")),
    Sketcher.Constraint("Radius", 10, Q("33 mm")),
    Sketcher.Constraint("DistanceX", 2, 1, 2, 2, Q("1 mm")),
    Sketcher.Constraint("DistanceX", 8, 1, 8, 2, Q("21 mm")),
    Sketcher.Constraint("DistanceY", 0, 1, 0, 2, Q("50 mm")),
    Sketcher.Constraint("DistanceY", -1, 1, 1, 3, Q("42 mm")),
    Sketcher.Constraint("DistanceY", -1, 1, 10, 3, Q("21 mm")),
    Sketcher.Constraint("DistanceX", 12, 3, 7, 3, Q("79 mm")),
    Sketcher.Constraint("DistanceX", -1, 1, 1, 3, Q("74.5 mm")),
    Sketcher.Constraint("DistanceX", 11, 2, 11, 1, Q("11.217561 mm")),
])
pad8 = body.newObject("PartDesign::Pad", "Pad007")
pad8.Profile = sketch9
pad8.Length = 2

doc.recompute()
